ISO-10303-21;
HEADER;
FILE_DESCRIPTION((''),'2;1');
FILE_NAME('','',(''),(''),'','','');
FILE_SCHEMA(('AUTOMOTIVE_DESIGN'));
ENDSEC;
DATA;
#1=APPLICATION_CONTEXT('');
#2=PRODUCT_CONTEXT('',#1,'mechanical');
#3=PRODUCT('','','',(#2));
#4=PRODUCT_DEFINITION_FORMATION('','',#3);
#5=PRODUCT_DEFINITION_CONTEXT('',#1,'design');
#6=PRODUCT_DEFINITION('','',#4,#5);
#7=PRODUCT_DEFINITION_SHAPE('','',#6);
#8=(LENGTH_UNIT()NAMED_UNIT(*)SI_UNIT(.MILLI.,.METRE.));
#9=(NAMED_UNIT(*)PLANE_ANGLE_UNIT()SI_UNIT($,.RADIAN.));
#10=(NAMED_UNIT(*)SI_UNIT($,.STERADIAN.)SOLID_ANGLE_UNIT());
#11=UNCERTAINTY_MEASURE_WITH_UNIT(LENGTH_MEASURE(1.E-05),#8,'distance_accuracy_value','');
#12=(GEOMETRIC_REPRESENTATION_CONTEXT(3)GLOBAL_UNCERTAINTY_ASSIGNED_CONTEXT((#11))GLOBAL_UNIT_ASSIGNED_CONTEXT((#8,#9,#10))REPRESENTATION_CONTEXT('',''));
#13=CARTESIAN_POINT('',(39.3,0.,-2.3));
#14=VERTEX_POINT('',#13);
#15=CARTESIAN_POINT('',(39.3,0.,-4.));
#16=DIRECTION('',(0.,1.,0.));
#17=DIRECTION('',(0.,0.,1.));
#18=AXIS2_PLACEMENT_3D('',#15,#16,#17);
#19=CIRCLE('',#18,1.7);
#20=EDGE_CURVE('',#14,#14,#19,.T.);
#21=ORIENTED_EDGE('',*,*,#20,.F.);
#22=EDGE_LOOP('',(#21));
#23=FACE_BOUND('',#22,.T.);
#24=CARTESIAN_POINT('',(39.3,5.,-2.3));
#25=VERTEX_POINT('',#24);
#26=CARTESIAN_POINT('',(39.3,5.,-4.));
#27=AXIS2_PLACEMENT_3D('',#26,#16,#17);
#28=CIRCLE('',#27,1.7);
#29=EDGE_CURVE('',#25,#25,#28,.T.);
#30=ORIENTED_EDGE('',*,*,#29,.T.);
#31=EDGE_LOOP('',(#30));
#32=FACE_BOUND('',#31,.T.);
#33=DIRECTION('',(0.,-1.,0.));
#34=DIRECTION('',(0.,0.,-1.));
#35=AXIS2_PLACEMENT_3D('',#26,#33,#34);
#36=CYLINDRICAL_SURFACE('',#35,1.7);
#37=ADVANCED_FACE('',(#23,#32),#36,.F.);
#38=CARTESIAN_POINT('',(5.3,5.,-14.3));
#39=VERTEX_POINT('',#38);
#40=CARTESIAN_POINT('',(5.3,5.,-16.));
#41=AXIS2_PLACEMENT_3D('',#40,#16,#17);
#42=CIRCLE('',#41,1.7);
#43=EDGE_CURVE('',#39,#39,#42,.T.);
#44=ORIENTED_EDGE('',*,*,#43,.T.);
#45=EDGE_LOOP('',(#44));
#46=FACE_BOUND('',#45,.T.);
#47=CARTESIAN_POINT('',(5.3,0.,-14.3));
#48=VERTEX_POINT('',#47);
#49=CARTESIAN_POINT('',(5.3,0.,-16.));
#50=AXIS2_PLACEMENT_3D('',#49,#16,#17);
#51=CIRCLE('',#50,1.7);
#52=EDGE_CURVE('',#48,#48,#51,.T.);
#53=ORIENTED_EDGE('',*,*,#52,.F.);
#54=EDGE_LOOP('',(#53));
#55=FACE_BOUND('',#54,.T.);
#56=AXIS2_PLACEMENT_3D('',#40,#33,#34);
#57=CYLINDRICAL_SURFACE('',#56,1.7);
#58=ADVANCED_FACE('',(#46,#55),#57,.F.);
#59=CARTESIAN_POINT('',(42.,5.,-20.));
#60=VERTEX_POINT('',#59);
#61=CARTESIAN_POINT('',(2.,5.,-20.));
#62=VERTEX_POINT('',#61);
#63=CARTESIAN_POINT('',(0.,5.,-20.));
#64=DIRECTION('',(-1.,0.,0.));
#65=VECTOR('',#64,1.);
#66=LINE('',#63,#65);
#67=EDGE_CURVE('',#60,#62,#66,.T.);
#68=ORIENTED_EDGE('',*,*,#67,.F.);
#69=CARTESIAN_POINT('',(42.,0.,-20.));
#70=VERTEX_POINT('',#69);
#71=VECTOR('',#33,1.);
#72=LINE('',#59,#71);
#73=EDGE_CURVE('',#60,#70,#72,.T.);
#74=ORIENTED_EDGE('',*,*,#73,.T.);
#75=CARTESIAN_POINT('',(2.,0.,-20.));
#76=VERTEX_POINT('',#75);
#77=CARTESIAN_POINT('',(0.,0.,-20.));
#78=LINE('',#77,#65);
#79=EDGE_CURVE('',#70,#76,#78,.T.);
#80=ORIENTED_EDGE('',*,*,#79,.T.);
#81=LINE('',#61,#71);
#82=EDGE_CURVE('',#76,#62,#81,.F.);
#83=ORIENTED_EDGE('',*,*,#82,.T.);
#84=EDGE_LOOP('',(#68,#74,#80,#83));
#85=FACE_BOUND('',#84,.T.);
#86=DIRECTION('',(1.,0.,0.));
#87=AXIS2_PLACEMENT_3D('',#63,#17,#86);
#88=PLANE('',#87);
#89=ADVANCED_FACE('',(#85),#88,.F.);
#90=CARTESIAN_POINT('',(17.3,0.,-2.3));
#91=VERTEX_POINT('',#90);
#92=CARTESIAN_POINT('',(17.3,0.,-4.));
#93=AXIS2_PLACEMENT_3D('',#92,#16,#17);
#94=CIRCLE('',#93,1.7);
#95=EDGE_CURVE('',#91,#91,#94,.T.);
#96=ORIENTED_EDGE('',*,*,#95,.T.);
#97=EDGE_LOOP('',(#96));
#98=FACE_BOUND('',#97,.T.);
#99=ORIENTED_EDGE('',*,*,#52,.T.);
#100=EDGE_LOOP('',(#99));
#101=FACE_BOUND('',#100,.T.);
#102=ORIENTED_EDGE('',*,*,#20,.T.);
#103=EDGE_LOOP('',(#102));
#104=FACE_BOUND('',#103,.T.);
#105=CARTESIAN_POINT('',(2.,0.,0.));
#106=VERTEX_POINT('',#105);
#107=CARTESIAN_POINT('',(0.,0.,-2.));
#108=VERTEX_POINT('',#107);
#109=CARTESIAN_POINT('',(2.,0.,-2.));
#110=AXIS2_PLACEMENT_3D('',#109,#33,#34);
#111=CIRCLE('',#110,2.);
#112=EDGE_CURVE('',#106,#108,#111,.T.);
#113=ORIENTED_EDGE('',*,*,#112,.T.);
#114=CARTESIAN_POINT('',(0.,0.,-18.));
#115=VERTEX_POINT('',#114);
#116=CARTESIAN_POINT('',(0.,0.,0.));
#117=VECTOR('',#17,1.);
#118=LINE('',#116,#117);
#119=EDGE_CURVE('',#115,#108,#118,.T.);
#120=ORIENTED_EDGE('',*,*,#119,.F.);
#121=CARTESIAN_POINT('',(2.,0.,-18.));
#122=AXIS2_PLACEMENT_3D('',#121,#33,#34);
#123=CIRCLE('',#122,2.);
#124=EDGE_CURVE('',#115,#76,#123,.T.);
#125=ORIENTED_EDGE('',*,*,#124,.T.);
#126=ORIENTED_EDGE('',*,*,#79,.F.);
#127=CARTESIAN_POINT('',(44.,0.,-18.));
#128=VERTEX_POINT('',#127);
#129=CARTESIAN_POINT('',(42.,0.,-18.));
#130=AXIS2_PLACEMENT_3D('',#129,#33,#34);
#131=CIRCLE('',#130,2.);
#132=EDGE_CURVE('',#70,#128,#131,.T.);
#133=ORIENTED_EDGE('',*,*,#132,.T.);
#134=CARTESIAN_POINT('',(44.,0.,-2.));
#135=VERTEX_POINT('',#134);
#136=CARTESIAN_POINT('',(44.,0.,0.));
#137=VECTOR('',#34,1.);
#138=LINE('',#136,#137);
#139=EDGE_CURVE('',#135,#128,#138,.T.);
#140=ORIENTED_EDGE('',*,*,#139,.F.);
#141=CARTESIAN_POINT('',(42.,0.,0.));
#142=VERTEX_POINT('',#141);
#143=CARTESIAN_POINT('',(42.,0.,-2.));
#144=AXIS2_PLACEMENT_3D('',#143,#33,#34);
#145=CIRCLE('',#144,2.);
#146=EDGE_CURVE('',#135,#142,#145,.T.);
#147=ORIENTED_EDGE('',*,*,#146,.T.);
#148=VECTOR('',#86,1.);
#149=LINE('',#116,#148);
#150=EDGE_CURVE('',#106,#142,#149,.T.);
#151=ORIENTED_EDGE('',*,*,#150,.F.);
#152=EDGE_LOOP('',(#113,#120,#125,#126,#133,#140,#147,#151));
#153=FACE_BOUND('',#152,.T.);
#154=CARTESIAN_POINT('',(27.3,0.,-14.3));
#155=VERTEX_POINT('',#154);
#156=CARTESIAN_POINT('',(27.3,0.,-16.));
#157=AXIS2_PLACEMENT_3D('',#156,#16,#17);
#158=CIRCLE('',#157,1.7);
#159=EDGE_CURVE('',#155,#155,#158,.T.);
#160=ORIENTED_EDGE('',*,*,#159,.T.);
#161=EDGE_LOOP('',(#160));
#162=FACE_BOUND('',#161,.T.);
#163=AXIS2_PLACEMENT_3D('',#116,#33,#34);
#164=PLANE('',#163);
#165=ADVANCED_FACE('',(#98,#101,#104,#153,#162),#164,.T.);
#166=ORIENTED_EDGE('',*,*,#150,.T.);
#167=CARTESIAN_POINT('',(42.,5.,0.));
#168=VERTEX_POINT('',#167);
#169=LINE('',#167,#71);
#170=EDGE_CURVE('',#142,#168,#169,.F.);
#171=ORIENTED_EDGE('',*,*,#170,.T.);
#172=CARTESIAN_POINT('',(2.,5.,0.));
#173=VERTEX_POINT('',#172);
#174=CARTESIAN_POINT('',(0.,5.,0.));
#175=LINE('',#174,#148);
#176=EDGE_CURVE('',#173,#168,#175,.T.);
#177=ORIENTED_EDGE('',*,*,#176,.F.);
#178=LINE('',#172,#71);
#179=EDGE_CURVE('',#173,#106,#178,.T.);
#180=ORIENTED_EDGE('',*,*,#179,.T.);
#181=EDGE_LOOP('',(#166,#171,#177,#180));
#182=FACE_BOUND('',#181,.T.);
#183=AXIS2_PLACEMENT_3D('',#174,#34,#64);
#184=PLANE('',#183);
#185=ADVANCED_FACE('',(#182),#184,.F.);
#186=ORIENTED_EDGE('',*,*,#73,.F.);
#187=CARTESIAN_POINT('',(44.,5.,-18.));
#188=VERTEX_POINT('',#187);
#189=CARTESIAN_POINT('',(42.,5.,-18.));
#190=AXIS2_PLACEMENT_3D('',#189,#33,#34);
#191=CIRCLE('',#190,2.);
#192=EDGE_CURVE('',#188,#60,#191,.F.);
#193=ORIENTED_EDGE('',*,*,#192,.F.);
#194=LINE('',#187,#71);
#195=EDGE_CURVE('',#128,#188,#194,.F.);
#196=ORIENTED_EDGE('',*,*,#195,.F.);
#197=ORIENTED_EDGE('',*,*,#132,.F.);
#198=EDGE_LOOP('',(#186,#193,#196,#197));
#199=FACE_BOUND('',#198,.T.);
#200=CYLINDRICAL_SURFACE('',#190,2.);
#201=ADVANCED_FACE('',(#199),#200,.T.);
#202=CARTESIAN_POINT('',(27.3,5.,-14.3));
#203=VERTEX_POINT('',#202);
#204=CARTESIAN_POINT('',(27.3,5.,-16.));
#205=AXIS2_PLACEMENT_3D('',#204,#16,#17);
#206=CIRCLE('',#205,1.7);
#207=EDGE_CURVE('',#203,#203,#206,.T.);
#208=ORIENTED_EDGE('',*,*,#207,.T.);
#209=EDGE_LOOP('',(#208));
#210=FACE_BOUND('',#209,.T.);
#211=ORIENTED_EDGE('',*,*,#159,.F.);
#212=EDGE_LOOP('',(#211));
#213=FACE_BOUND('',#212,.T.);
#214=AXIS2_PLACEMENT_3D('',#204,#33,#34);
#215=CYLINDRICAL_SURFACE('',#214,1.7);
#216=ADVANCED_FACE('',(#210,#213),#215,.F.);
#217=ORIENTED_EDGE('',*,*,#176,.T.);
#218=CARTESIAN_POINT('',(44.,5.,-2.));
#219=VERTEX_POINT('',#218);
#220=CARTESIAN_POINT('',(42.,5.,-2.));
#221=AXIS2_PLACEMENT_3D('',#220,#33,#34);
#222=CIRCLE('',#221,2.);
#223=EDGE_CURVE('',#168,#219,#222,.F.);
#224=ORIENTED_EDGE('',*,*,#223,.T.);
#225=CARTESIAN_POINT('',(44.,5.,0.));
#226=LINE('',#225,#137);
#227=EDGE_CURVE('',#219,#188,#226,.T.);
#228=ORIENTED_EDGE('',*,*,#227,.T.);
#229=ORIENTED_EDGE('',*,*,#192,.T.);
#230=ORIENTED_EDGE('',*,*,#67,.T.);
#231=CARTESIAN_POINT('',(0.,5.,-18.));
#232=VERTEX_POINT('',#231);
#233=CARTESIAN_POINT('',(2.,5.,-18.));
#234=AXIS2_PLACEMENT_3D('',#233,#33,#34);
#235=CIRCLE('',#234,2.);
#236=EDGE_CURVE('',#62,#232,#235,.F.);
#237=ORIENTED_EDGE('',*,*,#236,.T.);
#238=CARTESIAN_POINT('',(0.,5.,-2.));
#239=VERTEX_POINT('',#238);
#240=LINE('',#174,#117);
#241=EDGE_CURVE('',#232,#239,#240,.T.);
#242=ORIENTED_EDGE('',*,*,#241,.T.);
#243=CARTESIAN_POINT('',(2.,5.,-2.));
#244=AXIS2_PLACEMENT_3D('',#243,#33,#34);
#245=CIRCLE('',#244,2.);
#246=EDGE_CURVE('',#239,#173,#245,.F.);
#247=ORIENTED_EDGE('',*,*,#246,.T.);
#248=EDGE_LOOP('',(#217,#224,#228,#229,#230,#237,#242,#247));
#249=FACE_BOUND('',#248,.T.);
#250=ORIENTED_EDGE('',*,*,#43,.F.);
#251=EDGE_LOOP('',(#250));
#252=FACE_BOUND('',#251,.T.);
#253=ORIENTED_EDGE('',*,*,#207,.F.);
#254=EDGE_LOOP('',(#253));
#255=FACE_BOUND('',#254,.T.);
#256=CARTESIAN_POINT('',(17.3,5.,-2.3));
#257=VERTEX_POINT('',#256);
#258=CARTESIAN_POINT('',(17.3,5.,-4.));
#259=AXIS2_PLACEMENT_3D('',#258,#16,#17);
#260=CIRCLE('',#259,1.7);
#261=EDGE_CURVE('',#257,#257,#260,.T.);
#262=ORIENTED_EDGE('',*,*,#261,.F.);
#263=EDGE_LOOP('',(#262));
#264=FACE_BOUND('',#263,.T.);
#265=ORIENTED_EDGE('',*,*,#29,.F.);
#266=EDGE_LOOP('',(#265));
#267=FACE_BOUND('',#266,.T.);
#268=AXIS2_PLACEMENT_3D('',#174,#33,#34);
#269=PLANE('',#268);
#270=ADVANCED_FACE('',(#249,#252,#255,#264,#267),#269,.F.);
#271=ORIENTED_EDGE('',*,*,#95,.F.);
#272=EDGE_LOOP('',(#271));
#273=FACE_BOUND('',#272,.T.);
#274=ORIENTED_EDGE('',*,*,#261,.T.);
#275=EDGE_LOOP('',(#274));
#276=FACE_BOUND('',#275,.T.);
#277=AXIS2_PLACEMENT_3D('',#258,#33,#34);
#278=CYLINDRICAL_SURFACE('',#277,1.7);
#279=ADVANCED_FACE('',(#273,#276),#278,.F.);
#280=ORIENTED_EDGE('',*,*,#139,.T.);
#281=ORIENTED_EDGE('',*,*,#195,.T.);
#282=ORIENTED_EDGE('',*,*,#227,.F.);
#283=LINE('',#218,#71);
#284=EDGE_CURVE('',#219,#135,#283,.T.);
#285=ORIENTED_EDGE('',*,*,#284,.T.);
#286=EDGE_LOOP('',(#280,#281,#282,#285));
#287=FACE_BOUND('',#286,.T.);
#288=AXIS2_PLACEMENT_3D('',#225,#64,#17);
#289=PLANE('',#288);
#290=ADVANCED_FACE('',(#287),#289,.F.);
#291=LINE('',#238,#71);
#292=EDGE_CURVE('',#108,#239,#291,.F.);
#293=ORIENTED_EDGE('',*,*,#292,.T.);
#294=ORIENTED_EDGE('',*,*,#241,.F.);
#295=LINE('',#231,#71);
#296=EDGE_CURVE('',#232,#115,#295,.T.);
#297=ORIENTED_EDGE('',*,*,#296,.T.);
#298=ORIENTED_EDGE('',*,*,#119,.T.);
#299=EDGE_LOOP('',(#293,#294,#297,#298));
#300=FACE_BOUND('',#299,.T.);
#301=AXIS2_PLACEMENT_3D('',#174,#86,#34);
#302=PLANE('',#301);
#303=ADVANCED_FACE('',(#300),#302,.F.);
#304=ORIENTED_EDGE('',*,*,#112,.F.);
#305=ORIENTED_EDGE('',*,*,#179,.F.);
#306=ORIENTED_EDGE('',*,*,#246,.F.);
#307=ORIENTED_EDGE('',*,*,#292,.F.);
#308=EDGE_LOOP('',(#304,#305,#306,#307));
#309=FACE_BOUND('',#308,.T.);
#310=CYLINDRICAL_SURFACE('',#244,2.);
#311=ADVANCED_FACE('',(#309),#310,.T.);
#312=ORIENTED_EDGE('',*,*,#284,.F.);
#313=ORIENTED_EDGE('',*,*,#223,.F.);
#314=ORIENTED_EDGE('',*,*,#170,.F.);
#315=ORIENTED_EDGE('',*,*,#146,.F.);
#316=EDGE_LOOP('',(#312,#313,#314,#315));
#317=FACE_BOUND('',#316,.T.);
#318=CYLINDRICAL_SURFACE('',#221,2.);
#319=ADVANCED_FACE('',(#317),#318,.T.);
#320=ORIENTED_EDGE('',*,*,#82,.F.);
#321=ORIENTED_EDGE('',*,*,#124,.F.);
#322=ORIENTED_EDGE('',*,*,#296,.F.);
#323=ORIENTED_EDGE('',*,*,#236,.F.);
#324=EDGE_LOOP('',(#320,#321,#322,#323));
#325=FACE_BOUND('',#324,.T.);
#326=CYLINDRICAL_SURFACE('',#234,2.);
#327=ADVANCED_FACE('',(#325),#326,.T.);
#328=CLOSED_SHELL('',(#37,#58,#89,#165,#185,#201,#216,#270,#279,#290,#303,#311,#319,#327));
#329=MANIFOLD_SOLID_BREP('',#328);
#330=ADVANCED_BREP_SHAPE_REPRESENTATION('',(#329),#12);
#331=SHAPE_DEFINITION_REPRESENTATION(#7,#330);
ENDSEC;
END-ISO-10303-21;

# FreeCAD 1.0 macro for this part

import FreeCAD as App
import Part
import Sketcher

V = App.Vector
Q = App.Units.Quantity


def edges_at(feature, points):
    """Names of the edges that pass closest to the given points."""
    edges = feature.Shape.Edges
    near = lambda p: min(range(len(edges)), key=lambda i: edges[i].distToShape(Part.Vertex(*p))[0])
    return sorted({f"Edge{near(p) + 1}" for p in points})

doc = App.newDocument("Part")
body = doc.addObject("PartDesign::Body", "Body")

# Sketch on XZ plane
sketch1 = body.newObject("Sketcher::SketchObject", "Sketch")
sketch1.AttachmentSupport = (doc.getObject("XZ_Plane"), [""])
sketch1.MapMode = "FlatFace"
sketch1.addGeometry([
    Part.LineSegment(V(0, -20, 0), V(0, 0, 0)),  # 0
    Part.LineSegment(V(0, 0, 0), V(44, 0, 0)),  # 1
    Part.LineSegment(V(44, 0, 0), V(44, -20, 0)),  # 2
    Part.LineSegment(V(44, -20, 0), V(0, -20, 0)),  # 3
    Part.Circle(V(17.3, -4, 0), V(0, 0, 1), 1.7),  # 4
    Part.Circle(V(39.3, -4, 0), V(0, 0, 1), 1.7),  # 5
    Part.Circle(V(5.3, -16, 0), V(0, 0, 1), 1.7),  # 6
    Part.Circle(V(27.3, -16, 0), V(0, 0, 1), 1.7),  # 7
], False)
sketch1.addConstraint([
    Sketcher.Constraint("Coincident", 0, 2, 1, 1),
    Sketcher.Constraint("Coincident", 1, 2, 2, 1),
    Sketcher.Constraint("Coincident", 2, 2, 3, 1),
    Sketcher.Constraint("Coincident", 3, 2, 0, 1),
    Sketcher.Constraint("Vertical", 0),
    Sketcher.Constraint("Horizontal", 1),
    Sketcher.Constraint("Vertical", 2),
    Sketcher.Constraint("Horizontal", 3),
    Sketcher.Constraint("Coincident", 0, 2, -1, 1),
    Sketcher.Constraint("Equal", 4, 5),
    Sketcher.Constraint("Equal", 5, 6),
    Sketcher.Constraint("Equal", 6, 7),
    Sketcher.Constraint("Horizontal", 4, 3, 5, 3),
    Sketcher.Constraint("Horizontal", 6, 3, 7, 3),
    Sketcher.Constraint("Diameter", 4, Q("3.4 mm")),
    Sketcher.Constraint("DistanceX", 1, 1, 1, 2, Q("44 mm")),
    Sketcher.Constraint("DistanceY", 0, 1, 0, 2, Q("20 mm")),
    Sketcher.Constraint("DistanceY", 4, 3, -1, 1, Q("4 mm")),
    Sketcher.Constraint("DistanceY", 6, 3, -1, 1, Q("16 mm")),
    Sketcher.Constraint("DistanceX", 4, 3, 5, 3, Q("22 mm")),
    Sketcher.Constraint("DistanceX", 6, 3, 4, 3, Q("12 mm")),
    Sketcher.Constraint("DistanceX", 4, 3, 7, 3, Q("10 mm")),
    Sketcher.Constraint("DistanceX", -1, 1, 4, 3, Q("17.3 mm")),
])
pad1 = body.newObject("PartDesign::Pad", "Pad")
pad1.Profile = sketch1
pad1.Length = 5
pad1.Reversed = True
doc.recompute()

fillet = body.newObject("PartDesign::Fillet", "Fillet")
fillet.Base = (pad1, edges_at(pad1, [
    (0, 2.5, -20),
    (44, 2.5, -20),
    (44, 2.5, 0),
    (0, 2.5, 0),
]))
fillet.Radius = 2

doc.recompute()
